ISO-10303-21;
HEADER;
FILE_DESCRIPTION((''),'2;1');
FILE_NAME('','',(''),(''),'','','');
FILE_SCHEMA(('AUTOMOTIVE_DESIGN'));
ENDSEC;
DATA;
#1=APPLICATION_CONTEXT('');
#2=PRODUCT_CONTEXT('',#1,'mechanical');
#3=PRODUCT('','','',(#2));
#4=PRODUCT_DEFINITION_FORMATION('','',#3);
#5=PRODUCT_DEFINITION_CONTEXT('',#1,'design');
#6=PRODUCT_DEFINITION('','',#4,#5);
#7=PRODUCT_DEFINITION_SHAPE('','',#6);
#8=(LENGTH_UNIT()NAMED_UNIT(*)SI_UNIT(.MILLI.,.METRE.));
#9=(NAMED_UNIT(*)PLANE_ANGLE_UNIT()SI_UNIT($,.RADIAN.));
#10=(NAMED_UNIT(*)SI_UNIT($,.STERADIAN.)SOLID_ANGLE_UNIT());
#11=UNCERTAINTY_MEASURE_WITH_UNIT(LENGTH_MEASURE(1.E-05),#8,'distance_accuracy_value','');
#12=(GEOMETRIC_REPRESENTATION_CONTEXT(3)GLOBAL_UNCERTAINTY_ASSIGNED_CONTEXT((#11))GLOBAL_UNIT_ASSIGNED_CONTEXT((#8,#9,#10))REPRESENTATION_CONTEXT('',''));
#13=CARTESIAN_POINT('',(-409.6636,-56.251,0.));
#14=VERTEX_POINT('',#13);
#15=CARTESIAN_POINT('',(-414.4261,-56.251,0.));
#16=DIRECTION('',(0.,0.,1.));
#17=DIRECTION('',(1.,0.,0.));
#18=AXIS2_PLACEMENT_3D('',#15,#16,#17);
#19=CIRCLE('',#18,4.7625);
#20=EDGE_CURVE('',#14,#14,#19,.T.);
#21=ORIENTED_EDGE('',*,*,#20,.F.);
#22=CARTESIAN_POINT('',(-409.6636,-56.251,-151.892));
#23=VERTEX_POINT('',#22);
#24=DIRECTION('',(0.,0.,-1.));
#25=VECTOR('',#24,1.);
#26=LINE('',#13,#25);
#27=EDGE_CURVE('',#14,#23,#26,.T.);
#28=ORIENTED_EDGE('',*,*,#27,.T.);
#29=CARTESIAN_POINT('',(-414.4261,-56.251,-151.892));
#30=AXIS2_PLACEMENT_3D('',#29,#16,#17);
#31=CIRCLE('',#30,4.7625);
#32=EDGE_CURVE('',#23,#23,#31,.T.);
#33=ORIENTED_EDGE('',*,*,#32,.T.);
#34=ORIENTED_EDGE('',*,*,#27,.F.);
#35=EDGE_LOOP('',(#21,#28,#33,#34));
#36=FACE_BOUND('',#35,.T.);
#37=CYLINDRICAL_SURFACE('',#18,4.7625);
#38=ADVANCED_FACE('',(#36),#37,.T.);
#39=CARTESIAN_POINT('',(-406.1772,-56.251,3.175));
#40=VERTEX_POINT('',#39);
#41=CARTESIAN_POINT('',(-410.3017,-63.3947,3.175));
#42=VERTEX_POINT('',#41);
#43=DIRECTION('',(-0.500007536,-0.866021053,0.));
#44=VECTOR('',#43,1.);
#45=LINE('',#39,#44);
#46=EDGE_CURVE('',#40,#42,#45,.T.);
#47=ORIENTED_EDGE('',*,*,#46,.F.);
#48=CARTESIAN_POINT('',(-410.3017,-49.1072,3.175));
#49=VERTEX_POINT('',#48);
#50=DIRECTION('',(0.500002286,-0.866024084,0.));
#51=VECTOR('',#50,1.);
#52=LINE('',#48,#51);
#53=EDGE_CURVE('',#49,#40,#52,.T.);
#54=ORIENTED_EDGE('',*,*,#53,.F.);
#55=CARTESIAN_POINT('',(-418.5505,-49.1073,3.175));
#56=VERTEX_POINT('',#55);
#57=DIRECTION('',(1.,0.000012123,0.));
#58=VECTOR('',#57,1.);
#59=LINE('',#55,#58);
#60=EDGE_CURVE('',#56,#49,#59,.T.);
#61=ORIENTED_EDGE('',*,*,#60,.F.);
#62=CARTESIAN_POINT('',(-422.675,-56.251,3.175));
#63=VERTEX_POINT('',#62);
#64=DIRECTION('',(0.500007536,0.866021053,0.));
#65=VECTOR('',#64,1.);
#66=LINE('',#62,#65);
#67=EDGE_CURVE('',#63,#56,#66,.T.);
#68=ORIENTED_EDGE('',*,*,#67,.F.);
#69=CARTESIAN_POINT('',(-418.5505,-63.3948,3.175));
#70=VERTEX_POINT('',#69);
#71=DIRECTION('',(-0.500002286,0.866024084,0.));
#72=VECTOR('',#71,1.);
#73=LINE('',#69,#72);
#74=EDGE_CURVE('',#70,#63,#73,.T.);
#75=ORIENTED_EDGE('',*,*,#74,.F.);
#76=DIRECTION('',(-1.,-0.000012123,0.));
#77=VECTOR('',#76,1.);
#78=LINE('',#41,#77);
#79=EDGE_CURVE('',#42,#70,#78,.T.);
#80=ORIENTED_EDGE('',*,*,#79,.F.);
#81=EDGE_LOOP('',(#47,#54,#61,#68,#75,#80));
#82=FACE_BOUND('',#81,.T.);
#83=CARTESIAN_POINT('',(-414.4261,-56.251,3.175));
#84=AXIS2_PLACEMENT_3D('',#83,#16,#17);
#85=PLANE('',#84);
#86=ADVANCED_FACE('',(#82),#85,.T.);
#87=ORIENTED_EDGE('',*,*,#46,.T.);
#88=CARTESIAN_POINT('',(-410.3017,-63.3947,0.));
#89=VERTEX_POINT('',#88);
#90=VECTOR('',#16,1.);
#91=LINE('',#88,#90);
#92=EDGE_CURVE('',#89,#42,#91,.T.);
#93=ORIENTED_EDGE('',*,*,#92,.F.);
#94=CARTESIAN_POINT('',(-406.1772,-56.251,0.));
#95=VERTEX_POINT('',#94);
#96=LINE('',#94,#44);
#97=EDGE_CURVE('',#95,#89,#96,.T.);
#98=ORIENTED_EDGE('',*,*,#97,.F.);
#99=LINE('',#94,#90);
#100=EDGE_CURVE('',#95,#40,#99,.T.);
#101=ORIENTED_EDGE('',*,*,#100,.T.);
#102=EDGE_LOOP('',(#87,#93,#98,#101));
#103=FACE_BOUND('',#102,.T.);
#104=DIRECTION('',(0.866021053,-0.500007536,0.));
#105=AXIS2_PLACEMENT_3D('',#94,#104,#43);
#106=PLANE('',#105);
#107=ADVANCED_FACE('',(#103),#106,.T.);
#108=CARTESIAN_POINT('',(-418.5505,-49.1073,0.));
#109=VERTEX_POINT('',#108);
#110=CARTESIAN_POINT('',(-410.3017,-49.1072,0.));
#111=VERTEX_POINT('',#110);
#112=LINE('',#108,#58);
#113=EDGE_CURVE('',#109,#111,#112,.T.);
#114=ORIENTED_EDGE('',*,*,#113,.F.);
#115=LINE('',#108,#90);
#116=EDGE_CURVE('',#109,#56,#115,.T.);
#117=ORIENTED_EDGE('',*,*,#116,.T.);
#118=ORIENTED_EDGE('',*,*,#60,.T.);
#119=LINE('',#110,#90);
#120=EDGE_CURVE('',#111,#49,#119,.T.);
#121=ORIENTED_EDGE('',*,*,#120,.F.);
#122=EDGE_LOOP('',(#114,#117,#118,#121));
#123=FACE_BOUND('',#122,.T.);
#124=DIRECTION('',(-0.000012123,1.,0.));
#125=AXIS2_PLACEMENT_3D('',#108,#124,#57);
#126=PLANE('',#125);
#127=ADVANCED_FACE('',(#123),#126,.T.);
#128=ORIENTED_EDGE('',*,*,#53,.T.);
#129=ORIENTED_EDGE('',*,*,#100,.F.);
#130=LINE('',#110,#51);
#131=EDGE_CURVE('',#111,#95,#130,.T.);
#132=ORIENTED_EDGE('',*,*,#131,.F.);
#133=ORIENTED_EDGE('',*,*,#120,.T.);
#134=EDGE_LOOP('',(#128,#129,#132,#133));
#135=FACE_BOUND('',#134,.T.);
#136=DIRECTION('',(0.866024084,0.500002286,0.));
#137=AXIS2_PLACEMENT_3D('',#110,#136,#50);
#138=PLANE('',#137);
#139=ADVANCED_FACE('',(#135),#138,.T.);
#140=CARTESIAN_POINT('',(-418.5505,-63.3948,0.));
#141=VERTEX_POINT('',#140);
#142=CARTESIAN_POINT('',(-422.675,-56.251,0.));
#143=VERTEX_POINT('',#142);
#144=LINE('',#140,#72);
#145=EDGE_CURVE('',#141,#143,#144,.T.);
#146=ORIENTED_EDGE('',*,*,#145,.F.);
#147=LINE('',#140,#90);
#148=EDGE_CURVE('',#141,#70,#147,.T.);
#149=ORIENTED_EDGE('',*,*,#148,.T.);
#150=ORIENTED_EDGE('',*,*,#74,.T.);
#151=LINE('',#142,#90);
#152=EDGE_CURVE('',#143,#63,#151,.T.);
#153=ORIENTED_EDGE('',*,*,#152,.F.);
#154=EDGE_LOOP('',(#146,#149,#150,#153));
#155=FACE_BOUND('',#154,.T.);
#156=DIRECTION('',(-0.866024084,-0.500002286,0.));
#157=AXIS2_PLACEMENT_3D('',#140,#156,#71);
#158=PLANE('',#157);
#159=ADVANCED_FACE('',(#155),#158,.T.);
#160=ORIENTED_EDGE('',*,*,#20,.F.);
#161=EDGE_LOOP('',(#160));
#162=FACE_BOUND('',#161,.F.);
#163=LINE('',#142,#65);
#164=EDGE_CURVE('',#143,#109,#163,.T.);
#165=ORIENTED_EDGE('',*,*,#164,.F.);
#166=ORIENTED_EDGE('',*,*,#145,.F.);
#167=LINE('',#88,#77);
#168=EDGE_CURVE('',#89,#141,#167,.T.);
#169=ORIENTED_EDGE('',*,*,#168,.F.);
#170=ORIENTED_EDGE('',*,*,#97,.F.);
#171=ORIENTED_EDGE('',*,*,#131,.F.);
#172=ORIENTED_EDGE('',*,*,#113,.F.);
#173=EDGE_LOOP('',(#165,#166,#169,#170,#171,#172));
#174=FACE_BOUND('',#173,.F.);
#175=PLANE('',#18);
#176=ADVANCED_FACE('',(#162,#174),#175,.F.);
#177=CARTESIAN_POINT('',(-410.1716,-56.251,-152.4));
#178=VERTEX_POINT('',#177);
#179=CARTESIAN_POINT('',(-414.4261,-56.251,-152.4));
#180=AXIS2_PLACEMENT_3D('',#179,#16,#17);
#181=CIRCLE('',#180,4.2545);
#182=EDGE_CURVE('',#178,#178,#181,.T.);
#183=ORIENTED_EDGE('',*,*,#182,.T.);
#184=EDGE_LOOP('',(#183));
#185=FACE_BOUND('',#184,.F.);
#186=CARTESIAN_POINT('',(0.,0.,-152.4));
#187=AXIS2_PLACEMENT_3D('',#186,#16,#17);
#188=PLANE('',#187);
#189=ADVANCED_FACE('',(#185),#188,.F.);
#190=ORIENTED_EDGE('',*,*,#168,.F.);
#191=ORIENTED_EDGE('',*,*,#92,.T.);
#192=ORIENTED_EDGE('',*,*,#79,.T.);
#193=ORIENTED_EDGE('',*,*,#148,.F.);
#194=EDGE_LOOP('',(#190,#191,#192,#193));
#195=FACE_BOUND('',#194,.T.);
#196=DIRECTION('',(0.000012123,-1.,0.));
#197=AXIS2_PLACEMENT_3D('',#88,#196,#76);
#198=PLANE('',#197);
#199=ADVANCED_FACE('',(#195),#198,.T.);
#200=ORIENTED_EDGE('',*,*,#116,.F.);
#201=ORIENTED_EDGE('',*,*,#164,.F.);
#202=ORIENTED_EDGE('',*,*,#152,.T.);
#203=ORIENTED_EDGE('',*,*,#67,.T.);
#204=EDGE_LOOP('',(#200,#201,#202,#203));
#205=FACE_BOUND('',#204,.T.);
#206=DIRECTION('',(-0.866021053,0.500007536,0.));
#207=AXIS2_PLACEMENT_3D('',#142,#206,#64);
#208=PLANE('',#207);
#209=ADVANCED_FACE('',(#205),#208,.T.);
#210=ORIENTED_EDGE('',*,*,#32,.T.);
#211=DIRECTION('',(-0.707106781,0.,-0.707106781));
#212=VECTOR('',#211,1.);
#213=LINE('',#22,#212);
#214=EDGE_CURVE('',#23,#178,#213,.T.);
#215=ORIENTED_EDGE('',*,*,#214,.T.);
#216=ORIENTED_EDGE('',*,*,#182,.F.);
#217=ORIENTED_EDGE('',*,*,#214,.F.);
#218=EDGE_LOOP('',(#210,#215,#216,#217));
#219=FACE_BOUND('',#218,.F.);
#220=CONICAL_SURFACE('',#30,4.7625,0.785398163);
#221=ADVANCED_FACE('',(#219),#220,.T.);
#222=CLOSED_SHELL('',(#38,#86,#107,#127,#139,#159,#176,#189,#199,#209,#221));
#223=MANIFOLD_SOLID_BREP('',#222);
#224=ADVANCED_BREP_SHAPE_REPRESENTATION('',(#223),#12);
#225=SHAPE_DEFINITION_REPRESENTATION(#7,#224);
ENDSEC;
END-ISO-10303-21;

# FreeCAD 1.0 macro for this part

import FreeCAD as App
import Part
import Sketcher
Q = App.Units.Quantity


def edges_at(feature, points):
    """Names of the edges that pass closest to the given points."""
    edges = feature.Shape.Edges
    near = lambda p: min(range(len(edges)), key=lambda i: edges[i].distToShape(Part.Vertex(*p))[0])
    return sorted({f"Edge{near(p) + 1}" for p in points})


def add_polygon(sketch, points):
    """Adds a closed chain of lines whose ends are joined by coincident constraints."""
    first, n = sketch.GeometryCount, len(points)
    for a, b in zip(points, points[1:] + points[:1]):
        sketch.addGeometry(Part.LineSegment(App.Vector(*a, 0), App.Vector(*b, 0)), False)
    for i in range(n):
        sketch.addConstraint(Sketcher.Constraint("Coincident", first + i, 2, first + (i + 1) % n, 1))

doc = App.newDocument("Part")
params = doc.addObject("Spreadsheet::Sheet", "Params")
for row, (alias, value) in enumerate([
    ("sketch1_diameter", "0.375 in"),
    ("pad1_length", "6 in"),
    ("pad2_length", "0.125 in"),
    ("chamfer_size", "0.02 in"),
], start=1):
    params.set(f"A{row}", alias)
    params.set(f"B{row}", "=" + value)
    params.setAlias(f"B{row}", alias)

body = doc.addObject("PartDesign::Body", "Body")

# Sketch on XY plane
sketch1 = body.newObject("Sketcher::SketchObject", "Sketch")
sketch1.AttachmentSupport = (doc.getObject("XY_Plane"), [""])
sketch1.MapMode = "FlatFace"
sketch1.addGeometry(Part.Circle(App.Vector(-414.4261, -56.251, 0), App.Vector(0, 0, 1), 4.7625), False)
sketch1.addConstraint([
    Sketcher.Constraint("Diameter", 0, Q("0.375 in")),
    Sketcher.Constraint("DistanceX", 0, 3, -1, 1, Q("16.316 in")),
    Sketcher.Constraint("DistanceY", 0, 3, -1, 1, Q("2.2146 in")),
])
sketch1.setExpression("Constraints[0]", "Params.sketch1_diameter")
pad1 = body.newObject("PartDesign::Pad", "Pad")
pad1.Profile = sketch1
pad1.setExpression("Length", "Params.pad1_length")
pad1.Reversed = True

# Sketch on XY plane
sketch2 = body.newObject("Sketcher::SketchObject", "Sketch001")
sketch2.AttachmentSupport = (doc.getObject("XY_Plane"), [""])
sketch2.MapMode = "FlatFace"
add_polygon(sketch2, [(-418.5505, -49.1073), (-422.675, -56.251), (-418.5505, -63.3948), (-410.3017, -63.3947), (-406.1772, -56.251), (-410.3017, -49.1072)])  # lines 0-5
sketch2.addConstraint([
    Sketcher.Constraint("Horizontal", 2),
    Sketcher.Constraint("Horizontal", 5),
    Sketcher.Constraint("Parallel", 0, 3),
    Sketcher.Constraint("Parallel", 1, 4),
    Sketcher.Constraint("Horizontal", 0, 2, 3, 2),
    Sketcher.Constraint("Vertical", 2, 2, 4, 2),
    Sketcher.Constraint("Vertical", 1, 2, 5, 2),
    Sketcher.Constraint("Angle", 0, Q("-120.0005 deg")),
    Sketcher.Constraint("DistanceY", 2, 2, 4, 2, Q("0.5625 in")),
    Sketcher.Constraint("DistanceX", 2, 1, 2, 2, Q("8.2488 mm")),
    Sketcher.Constraint("DistanceY", 0, 2, -1, 1, Q("2.2146 in")),
    Sketcher.Constraint("DistanceX", 2, 2, -1, 1, Q("16.1536 in")),
])
pad2 = body.newObject("PartDesign::Pad", "Pad001")
pad2.Profile = sketch2
pad2.setExpression("Length", "Params.pad2_length")
doc.recompute()

chamfer = body.newObject("PartDesign::Chamfer", "Chamfer")
chamfer.Base = (pad2, edges_at(pad2, [(-419.189, -56.251, -152.4)]))
chamfer.setExpression("Size", "Params.chamfer_size")

doc.recompute()
